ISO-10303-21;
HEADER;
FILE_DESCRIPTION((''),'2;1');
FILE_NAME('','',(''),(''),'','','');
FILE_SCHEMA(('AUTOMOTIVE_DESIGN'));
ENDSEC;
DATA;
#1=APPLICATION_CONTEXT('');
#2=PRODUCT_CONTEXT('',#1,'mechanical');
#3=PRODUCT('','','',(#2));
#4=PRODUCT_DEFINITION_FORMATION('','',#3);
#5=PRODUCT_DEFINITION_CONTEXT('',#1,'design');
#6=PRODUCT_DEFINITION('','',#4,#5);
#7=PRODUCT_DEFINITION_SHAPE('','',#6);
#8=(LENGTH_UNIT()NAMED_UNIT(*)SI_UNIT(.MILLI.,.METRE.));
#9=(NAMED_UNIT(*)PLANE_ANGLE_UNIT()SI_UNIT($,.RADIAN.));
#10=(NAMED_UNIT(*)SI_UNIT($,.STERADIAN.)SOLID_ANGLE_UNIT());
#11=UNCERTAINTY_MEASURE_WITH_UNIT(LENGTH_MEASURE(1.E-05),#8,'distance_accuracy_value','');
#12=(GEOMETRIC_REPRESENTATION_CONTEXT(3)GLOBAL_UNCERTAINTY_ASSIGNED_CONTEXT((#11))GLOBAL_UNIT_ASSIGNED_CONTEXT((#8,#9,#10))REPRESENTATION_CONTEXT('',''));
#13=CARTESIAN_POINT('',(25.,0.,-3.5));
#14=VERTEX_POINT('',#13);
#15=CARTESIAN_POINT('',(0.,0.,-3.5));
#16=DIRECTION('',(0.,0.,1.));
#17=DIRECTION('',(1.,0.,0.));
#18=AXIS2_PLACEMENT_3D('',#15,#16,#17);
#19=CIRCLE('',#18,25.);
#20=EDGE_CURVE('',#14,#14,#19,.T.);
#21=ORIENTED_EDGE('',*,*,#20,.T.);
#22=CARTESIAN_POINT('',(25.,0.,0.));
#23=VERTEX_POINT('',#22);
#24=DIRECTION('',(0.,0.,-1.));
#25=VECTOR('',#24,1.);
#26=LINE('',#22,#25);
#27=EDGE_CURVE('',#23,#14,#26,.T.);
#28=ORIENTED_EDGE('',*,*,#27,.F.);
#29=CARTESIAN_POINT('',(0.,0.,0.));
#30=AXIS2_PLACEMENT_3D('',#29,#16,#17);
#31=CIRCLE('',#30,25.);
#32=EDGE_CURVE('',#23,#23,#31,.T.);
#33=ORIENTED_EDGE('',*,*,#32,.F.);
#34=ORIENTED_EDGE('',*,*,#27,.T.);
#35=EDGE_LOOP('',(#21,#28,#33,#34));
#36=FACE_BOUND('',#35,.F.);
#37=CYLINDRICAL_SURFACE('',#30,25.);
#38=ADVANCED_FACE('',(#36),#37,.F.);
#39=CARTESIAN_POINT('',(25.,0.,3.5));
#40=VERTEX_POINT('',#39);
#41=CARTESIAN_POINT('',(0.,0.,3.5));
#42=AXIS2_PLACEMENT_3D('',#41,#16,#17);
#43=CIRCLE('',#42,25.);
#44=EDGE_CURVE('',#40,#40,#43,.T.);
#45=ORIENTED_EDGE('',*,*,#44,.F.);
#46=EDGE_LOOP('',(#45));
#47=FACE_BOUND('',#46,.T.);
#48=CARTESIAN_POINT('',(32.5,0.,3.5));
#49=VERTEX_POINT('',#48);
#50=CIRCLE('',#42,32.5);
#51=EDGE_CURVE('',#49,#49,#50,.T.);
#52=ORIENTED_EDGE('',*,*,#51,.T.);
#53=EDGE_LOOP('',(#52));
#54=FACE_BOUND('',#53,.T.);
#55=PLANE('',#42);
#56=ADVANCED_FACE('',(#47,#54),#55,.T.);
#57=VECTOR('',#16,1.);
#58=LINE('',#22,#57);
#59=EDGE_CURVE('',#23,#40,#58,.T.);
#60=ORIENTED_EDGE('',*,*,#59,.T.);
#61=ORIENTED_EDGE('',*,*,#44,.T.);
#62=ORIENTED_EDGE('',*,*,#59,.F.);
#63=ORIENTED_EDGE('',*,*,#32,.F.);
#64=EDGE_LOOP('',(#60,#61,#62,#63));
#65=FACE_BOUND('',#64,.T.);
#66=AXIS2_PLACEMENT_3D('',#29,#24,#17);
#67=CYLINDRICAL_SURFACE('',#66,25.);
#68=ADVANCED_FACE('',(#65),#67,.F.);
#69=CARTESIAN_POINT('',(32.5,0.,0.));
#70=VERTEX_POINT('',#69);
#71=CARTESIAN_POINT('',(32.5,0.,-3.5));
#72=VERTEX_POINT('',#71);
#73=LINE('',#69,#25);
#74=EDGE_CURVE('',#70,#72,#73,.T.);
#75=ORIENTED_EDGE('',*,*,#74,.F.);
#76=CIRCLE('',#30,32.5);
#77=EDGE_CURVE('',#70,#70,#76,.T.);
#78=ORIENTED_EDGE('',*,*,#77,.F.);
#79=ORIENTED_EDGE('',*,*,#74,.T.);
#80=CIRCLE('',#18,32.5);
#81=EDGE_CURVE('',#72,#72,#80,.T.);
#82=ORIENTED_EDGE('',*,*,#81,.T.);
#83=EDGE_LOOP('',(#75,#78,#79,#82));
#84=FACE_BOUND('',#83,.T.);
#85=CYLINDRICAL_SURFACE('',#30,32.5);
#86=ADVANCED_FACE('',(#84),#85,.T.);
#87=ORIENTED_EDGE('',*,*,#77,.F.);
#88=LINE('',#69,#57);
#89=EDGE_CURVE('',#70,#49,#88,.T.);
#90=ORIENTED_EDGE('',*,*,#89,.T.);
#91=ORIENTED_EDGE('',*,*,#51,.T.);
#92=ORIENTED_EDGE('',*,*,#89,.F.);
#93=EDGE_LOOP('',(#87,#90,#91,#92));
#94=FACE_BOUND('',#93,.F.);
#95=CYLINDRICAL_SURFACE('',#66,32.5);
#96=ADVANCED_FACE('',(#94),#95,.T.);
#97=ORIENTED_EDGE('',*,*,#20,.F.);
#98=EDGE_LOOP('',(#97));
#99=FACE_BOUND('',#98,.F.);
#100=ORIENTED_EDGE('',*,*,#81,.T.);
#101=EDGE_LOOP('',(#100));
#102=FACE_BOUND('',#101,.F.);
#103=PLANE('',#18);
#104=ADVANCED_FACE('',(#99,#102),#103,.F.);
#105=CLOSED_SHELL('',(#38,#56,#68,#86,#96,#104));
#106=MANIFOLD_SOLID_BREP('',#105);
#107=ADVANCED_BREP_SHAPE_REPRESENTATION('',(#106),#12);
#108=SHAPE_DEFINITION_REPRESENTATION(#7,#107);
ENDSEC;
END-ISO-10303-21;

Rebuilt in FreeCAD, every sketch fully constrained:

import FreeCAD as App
import Part
import Sketcher

doc = App.newDocument("Part")
body = doc.addObject("PartDesign::Body", "Body")

# Sketch on XY plane
sketch1 = body.newObject("Sketcher::SketchObject", "Sketch")
sketch1.AttachmentSupport = (doc.getObject("XY_Plane"), [""])
sketch1.MapMode = "FlatFace"
sketch1.addGeometry([
    Part.Circle(App.Vector(0, 0, 0), App.Vector(0, 0, 1), 32.5),
    Part.Circle(App.Vector(0, 0, 0), App.Vector(0, 0, 1), 25),
], False)
sketch1.addConstraint([
    Sketcher.Constraint("Coincident", 0, 3, -1, 1),
    Sketcher.Constraint("Coincident", 1, 3, -1, 1),
    Sketcher.Constraint("Diameter", 0, 65.0),
    Sketcher.Constraint("Diameter", 1, 50.0),
])
pad1 = body.newObject("PartDesign::Pad", "Pad")
pad1.Profile = sketch1
pad1.Length = 7
pad1.Midplane = True

doc.recompute()
